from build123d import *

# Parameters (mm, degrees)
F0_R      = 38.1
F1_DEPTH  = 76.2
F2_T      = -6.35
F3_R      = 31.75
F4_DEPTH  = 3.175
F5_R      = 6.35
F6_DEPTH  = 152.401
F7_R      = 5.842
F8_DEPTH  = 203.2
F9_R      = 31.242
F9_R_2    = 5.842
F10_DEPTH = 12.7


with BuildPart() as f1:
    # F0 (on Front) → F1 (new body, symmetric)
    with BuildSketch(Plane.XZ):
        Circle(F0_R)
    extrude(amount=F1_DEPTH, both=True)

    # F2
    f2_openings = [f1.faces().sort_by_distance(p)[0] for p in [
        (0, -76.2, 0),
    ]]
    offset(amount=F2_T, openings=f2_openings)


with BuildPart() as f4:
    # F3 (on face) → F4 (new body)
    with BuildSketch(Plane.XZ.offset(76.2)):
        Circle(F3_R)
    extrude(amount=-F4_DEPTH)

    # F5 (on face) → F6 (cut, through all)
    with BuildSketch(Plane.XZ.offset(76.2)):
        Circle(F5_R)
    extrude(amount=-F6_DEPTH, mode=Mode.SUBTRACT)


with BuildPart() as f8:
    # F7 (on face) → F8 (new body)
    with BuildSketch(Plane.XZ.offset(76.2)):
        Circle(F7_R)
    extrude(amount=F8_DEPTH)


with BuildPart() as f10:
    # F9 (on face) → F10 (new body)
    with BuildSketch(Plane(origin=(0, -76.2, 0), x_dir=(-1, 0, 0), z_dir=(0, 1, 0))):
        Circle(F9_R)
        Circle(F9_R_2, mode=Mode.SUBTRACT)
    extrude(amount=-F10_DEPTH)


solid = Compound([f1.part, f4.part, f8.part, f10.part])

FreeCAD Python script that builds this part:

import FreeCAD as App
import Part
import Sketcher

V = App.Vector
Q = App.Units.Quantity


def faces_at(feature, points):
    """Names of the faces that lie closest to the given points."""
    faces = feature.Shape.Faces
    near = lambda p: min(range(len(faces)), key=lambda i: faces[i].distToShape(Part.Vertex(*p))[0])
    return sorted({f"Face{near(p) + 1}" for p in points})

doc = App.newDocument("Part")
params = doc.addObject("Spreadsheet::Sheet", "Params")
for row, (alias, value) in enumerate([
    ("sketch1_diameter", "3 in"),
    ("pad1_length", "6 in"),
    ("thickness_wall", "0.25 in"),
    ("sketch2_diameter", "2.5 in"),
    ("pad2_length", "0.125 in"),
    ("sketch3_diameter", "0.5 in"),
    ("sketch4_diameter", "0.46 in"),
    ("pad3_length", "8 in"),
    ("sketch5_diameter", "2.46 in"),
    ("sketch5_diameter2", "0.46 in"),
    ("pad4_length", "0.5 in"),
], start=1):
    params.set(f"A{row}", alias)
    params.set(f"B{row}", "=" + value)
    params.setAlias(f"B{row}", alias)

body = doc.addObject("PartDesign::Body", "Body")

# Sketch on XZ plane
sketch1 = body.newObject("Sketcher::SketchObject", "Sketch")
sketch1.AttachmentSupport = (doc.getObject("XZ_Plane"), [""])
sketch1.MapMode = "FlatFace"
sketch1.addGeometry(Part.Circle(V(0, 0, 0), V(0, 0, 1), 38), False)
sketch1.addConstraint([
    Sketcher.Constraint("Coincident", 0, 3, -1, 1),
    Sketcher.Constraint("Diameter", 0, Q("3 in")),
])
sketch1.setExpression("Constraints[1]", "Params.sketch1_diameter")
pad1 = body.newObject("PartDesign::Pad", "Pad")
pad1.Profile = sketch1
pad1.setExpression("Length", "Params.pad1_length")
pad1.Midplane = True
doc.recompute()

thickness = body.newObject("PartDesign::Thickness", "Thickness")
thickness.Base = (pad1, faces_at(pad1, [(0, -76.2, 0)]))
thickness.setExpression("Value", "Params.thickness_wall")
thickness.Reversed = True
thickness.Join = "Arc"
body2 = doc.addObject("PartDesign::Body", "Body001")

# Sketch on XZ plane
sketch2 = body2.newObject("Sketcher::SketchObject", "Sketch001")
sketch2.AttachmentSupport = (doc.getObject("XZ_Plane001"), [""])
sketch2.MapMode = "FlatFace"
sketch2.AttachmentOffset = App.Placement(V(0, 0, 3 * 25.4), App.Rotation())
sketch2.addGeometry(Part.Circle(V(0, 0, 0), V(0, 0, 1), 32), False)
sketch2.addConstraint([
    Sketcher.Constraint("Coincident", 0, 3, -1, 1),
    Sketcher.Constraint("Diameter", 0, Q("2.5 in")),
])
sketch2.setExpression("Constraints[1]", "Params.sketch2_diameter")
pad2 = body2.newObject("PartDesign::Pad", "Pad001")
pad2.Profile = sketch2
pad2.setExpression("Length", "Params.pad2_length")
pad2.Reversed = True

# Sketch on XZ plane
sketch3 = body2.newObject("Sketcher::SketchObject", "Sketch002")
sketch3.AttachmentSupport = (doc.getObject("XZ_Plane001"), [""])
sketch3.MapMode = "FlatFace"
sketch3.AttachmentOffset = App.Placement(V(0, 0, 3 * 25.4), App.Rotation())
sketch3.addGeometry(Part.Circle(V(0, 0, 0), V(0, 0, 1), 6), False)
sketch3.addConstraint([
    Sketcher.Constraint("Coincident", 0, 3, -1, 1),
    Sketcher.Constraint("Diameter", 0, Q("0.5 in")),
])
sketch3.setExpression("Constraints[1]", "Params.sketch3_diameter")
pocket1 = body2.newObject("PartDesign::Pocket", "Pocket")
pocket1.Profile = sketch3
pocket1.Type = "ThroughAll"
body3 = doc.addObject("PartDesign::Body", "Body002")

# Sketch on XZ plane
sketch4 = body3.newObject("Sketcher::SketchObject", "Sketch003")
sketch4.AttachmentSupport = (doc.getObject("XZ_Plane002"), [""])
sketch4.MapMode = "FlatFace"
sketch4.AttachmentOffset = App.Placement(V(0, 0, 3 * 25.4), App.Rotation())
sketch4.addGeometry(Part.Circle(V(0, 0, 0), V(0, 0, 1), 6), False)
sketch4.addConstraint([
    Sketcher.Constraint("Coincident", 0, 3, -1, 1),
    Sketcher.Constraint("Diameter", 0, Q("0.46 in")),
])
sketch4.setExpression("Constraints[1]", "Params.sketch4_diameter")
pad3 = body3.newObject("PartDesign::Pad", "Pad002")
pad3.Profile = sketch4
pad3.setExpression("Length", "Params.pad3_length")
body4 = doc.addObject("PartDesign::Body", "Body003")

# Sketch on XZ plane
sketch5 = body4.newObject("Sketcher::SketchObject", "Sketch004")
sketch5.AttachmentSupport = (doc.getObject("XZ_Plane003"), [""])
sketch5.MapMode = "FlatFace"
sketch5.AttachmentOffset = App.Placement(V(0, 0, 3 * 25.4), App.Rotation())
sketch5.addGeometry([
    Part.Circle(V(0, 0, 0), V(0, 0, 1), 31),
    Part.Circle(V(0, 0, 0), V(0, 0, 1), 6),
], False)
sketch5.addConstraint([
    Sketcher.Constraint("Coincident", 0, 3, -1, 1),
    Sketcher.Constraint("Coincident", 1, 3, -1, 1),
    Sketcher.Constraint("Diameter", 0, Q("2.46 in")),
    Sketcher.Constraint("Diameter", 1, Q("0.46 in")),
])
sketch5.setExpression("Constraints[2]", "Params.sketch5_diameter")
sketch5.setExpression("Constraints[3]", "Params.sketch5_diameter2")
pad4 = body4.newObject("PartDesign::Pad", "Pad003")
pad4.Profile = sketch5
pad4.setExpression("Length", "Params.pad4_length")

doc.recompute()
